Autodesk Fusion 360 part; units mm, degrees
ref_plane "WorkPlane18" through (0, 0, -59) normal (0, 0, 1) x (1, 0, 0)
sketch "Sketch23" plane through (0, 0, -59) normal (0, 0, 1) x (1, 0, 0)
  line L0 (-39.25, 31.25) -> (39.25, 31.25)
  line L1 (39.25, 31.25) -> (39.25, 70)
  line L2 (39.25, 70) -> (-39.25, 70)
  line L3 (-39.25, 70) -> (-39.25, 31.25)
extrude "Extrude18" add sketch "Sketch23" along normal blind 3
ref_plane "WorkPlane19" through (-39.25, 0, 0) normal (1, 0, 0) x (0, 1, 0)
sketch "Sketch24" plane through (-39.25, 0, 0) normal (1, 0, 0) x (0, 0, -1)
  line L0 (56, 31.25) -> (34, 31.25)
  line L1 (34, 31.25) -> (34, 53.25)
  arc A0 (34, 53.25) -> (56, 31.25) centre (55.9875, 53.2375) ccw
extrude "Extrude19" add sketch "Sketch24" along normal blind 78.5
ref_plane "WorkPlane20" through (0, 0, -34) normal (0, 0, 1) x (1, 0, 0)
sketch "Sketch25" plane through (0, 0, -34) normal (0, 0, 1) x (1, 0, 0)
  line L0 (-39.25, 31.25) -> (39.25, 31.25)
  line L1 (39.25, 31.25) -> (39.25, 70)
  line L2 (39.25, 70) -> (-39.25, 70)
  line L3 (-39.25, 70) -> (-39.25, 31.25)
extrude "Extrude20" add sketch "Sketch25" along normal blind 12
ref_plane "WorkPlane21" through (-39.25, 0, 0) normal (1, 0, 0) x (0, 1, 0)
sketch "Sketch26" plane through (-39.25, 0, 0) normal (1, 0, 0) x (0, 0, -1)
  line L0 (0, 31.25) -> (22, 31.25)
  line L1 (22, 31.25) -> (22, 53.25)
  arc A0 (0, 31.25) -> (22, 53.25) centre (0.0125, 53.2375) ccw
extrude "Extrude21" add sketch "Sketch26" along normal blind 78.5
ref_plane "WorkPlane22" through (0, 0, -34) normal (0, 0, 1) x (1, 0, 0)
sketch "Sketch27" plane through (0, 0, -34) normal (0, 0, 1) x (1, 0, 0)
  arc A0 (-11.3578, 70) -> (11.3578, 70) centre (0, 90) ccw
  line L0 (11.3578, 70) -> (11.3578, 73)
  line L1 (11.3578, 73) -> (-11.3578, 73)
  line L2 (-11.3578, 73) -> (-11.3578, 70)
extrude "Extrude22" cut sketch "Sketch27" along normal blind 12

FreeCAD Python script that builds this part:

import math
import FreeCAD as App
import Part
import Sketcher
from FreeCAD import Vector

doc = App.newDocument("Part")
body = doc.addObject("PartDesign::Body", "Body")
body.AllowCompound = True

sketch1 = body.newObject("Sketcher::SketchObject", "Sketch")
sketch1.AttachmentSupport = (doc.getObject("XY_Plane"), [""])
sketch1.MapMode = "FlatFace"
sketch1.AttachmentOffset = App.Placement(Vector(0, 0, -59), App.Rotation())
sketch1.addGeometry([
    Part.LineSegment(Vector(-39.25, 70, 0), Vector(-39.25, 31.25, 0)),
    Part.LineSegment(Vector(-39.25, 31.25, 0), Vector(39.25, 31.25, 0)),
    Part.LineSegment(Vector(39.25, 31.25, 0), Vector(39.25, 70, 0)),
    Part.LineSegment(Vector(39.25, 70, 0), Vector(-39.25, 70, 0)),
], False)
sketch1.addConstraint([
    Sketcher.Constraint("Coincident", 0, 2, 1, 1),
    Sketcher.Constraint("Coincident", 1, 2, 2, 1),
    Sketcher.Constraint("Coincident", 2, 2, 3, 1),
    Sketcher.Constraint("Coincident", 3, 2, 0, 1),
    Sketcher.Constraint("Vertical", 0),
    Sketcher.Constraint("Horizontal", 1),
    Sketcher.Constraint("Vertical", 2),
    Sketcher.Constraint("Horizontal", 3),
    Sketcher.Constraint("DistanceX", 1, 1, 1, 2, 78.5),
    Sketcher.Constraint("DistanceY", -1, 1, 2, 2, 70.0),
    Sketcher.Constraint("DistanceY", 0, 2, 0, 1, 38.75),
    Sketcher.Constraint("DistanceX", 0, 2, -1, 1, 39.25),
])
pad1 = body.newObject("PartDesign::Pad", "Pad")
pad1.Profile = sketch1
pad1.Length = 3

sketch2 = body.newObject("Sketcher::SketchObject", "Sketch001")
sketch2.AttachmentSupport = (doc.getObject("YZ_Plane"), [""])
sketch2.MapMode = "FlatFace"
sketch2.AttachmentOffset = App.Placement(Vector(0, 0, -39.25), App.Rotation())
sketch2.addGeometry([
    Part.LineSegment(Vector(31.25, -34, 0), Vector(31.25, -56, 0)),
    Part.ArcOfCircle(Part.Circle(Vector(53.2375, -55.9875, 0), Vector(0, 0, 1), 21.987504), math.radians(89.967427), math.radians(180.032573)),
    Part.LineSegment(Vector(53.25, -34, 0), Vector(31.25, -34, 0)),
], False)
sketch2.addConstraint([
    Sketcher.Constraint("Coincident", 0, 2, 1, 2),
    Sketcher.Constraint("Coincident", 1, 1, 2, 1),
    Sketcher.Constraint("Coincident", 2, 2, 0, 1),
    Sketcher.Constraint("Vertical", 0),
    Sketcher.Constraint("Horizontal", 2),
    Sketcher.Constraint("Equal", 2, 0),
    Sketcher.Constraint("DistanceX", 2, 2, 2, 1, 22.0),
    Sketcher.Constraint("DistanceY", 0, 2, -1, 1, 56.0),
    Sketcher.Constraint("Radius", 1, 21.9875),
    Sketcher.Constraint("DistanceX", -1, 1, 0, 2, 31.25),
])
pad2 = body.newObject("PartDesign::Pad", "Pad001")
pad2.Profile = sketch2
pad2.Length = 78.5

sketch3 = body.newObject("Sketcher::SketchObject", "Sketch002")
sketch3.AttachmentSupport = (doc.getObject("XY_Plane"), [""])
sketch3.MapMode = "FlatFace"
sketch3.AttachmentOffset = App.Placement(Vector(0, 0, -34), App.Rotation())
sketch3.addGeometry([
    Part.LineSegment(Vector(-39.25, 70, 0), Vector(-39.25, 31.25, 0)),
    Part.LineSegment(Vector(-39.25, 31.25, 0), Vector(39.25, 31.25, 0)),
    Part.LineSegment(Vector(39.25, 31.25, 0), Vector(39.25, 70, 0)),
    Part.LineSegment(Vector(39.25, 70, 0), Vector(-39.25, 70, 0)),
], False)
sketch3.addConstraint([
    Sketcher.Constraint("Coincident", 0, 2, 1, 1),
    Sketcher.Constraint("Coincident", 1, 2, 2, 1),
    Sketcher.Constraint("Coincident", 2, 2, 3, 1),
    Sketcher.Constraint("Coincident", 3, 2, 0, 1),
    Sketcher.Constraint("Vertical", 0),
    Sketcher.Constraint("Horizontal", 1),
    Sketcher.Constraint("Vertical", 2),
    Sketcher.Constraint("Horizontal", 3),
    Sketcher.Constraint("DistanceX", 1, 1, 1, 2, 78.5),
    Sketcher.Constraint("DistanceY", -1, 1, 2, 2, 70.0),
    Sketcher.Constraint("DistanceY", 0, 2, 0, 1, 38.75),
    Sketcher.Constraint("DistanceX", 0, 2, -1, 1, 39.25),
])
pad3 = body.newObject("PartDesign::Pad", "Pad002")
pad3.Profile = sketch3
pad3.Length = 12

sketch4 = body.newObject("Sketcher::SketchObject", "Sketch003")
sketch4.AttachmentSupport = (doc.getObject("YZ_Plane"), [""])
sketch4.MapMode = "FlatFace"
sketch4.AttachmentOffset = App.Placement(Vector(0, 0, -39.25), App.Rotation())
sketch4.addGeometry([
    Part.ArcOfCircle(Part.Circle(Vector(53.2375, -0.0125, 0), Vector(0, 0, 1), 21.987504), math.radians(179.967427), math.radians(270.032573)),
    Part.LineSegment(Vector(31.25, 0, 0), Vector(31.25, -22, 0)),
    Part.LineSegment(Vector(31.25, -22, 0), Vector(53.25, -22, 0)),
], False)
sketch4.addConstraint([
    Sketcher.Constraint("Coincident", 0, 1, 1, 1),
    Sketcher.Constraint("Coincident", 1, 2, 2, 1),
    Sketcher.Constraint("Coincident", 2, 2, 0, 2),
    Sketcher.Constraint("Vertical", 1),
    Sketcher.Constraint("Horizontal", 2),
    Sketcher.Constraint("PointOnObject", 0, 1, -1),
    Sketcher.Constraint("Equal", 2, 1),
    Sketcher.Constraint("DistanceX", 2, 1, 2, 2, 22.0),
    Sketcher.Constraint("Radius", 0, 21.9875),
    Sketcher.Constraint("DistanceX", -1, 1, 0, 1, 31.25),
])
pad4 = body.newObject("PartDesign::Pad", "Pad003")
pad4.Profile = sketch4
pad4.Length = 78.5

sketch5 = body.newObject("Sketcher::SketchObject", "Sketch004")
sketch5.AttachmentSupport = (doc.getObject("XY_Plane"), [""])
sketch5.MapMode = "FlatFace"
sketch5.AttachmentOffset = App.Placement(Vector(0, 0, -34), App.Rotation())
sketch5.addGeometry([
    Part.LineSegment(Vector(-11.3578, 73, 0), Vector(-11.3578, 70, 0)),
    Part.ArcOfCircle(Part.Circle(Vector(0, 90, 0), Vector(0, 0, 1), 22.999992), math.radians(-119.59181), math.radians(-60.40819)),
    Part.LineSegment(Vector(11.3578, 70, 0), Vector(11.3578, 73, 0)),
    Part.LineSegment(Vector(11.3578, 73, 0), Vector(-11.3578, 73, 0)),
], False)
sketch5.addConstraint([
    Sketcher.Constraint("Coincident", 0, 2, 1, 1),
    Sketcher.Constraint("Coincident", 1, 2, 2, 1),
    Sketcher.Constraint("Coincident", 2, 2, 3, 1),
    Sketcher.Constraint("Coincident", 3, 2, 0, 1),
    Sketcher.Constraint("Vertical", 0),
    Sketcher.Constraint("Vertical", 2),
    Sketcher.Constraint("Horizontal", 3),
    Sketcher.Constraint("Symmetric", 0, 2, 1, 2, -2),
    Sketcher.Constraint("Radius", 1, 23.0),
    Sketcher.Constraint("DistanceY", 0, 2, 0, 1, 3.0),
    Sketcher.Constraint("DistanceY", -1, 1, 1, 3, 90.0),
    Sketcher.Constraint("DistanceY", -1, 1, 0, 2, 70.0),
])
pocket1 = body.newObject("PartDesign::Pocket", "Pocket")
pocket1.Profile = sketch5
pocket1.Length = 12
pocket1.Reversed = True

doc.recompute()
